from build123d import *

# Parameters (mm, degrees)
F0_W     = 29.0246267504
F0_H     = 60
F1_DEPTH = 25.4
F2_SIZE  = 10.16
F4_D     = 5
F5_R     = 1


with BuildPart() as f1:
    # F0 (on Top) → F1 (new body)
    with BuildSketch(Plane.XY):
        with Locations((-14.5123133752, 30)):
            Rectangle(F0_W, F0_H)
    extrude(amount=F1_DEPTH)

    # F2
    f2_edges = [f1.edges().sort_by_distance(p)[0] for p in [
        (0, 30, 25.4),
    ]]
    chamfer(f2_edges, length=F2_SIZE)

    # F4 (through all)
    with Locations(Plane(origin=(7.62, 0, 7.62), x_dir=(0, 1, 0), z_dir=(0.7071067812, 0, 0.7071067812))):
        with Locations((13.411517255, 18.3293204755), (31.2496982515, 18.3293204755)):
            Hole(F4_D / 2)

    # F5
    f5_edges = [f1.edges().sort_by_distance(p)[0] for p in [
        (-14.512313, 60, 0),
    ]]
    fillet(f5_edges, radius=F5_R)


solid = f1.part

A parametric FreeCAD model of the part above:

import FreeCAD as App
import Part
import Sketcher
from FreeCAD import Vector
Q = App.Units.Quantity


def edges_at(feature, points):
    """Names of the edges that pass closest to the given points."""
    edges = feature.Shape.Edges
    near = lambda p: min(range(len(edges)), key=lambda i: edges[i].distToShape(Part.Vertex(*p))[0])
    return sorted({f"Edge{near(p) + 1}" for p in points})


def add_polygon(sketch, points):
    """Adds a closed chain of lines whose ends are joined by coincident constraints."""
    first, n = sketch.GeometryCount, len(points)
    for a, b in zip(points, points[1:] + points[:1]):
        sketch.addGeometry(Part.LineSegment(App.Vector(*a, 0), App.Vector(*b, 0)), False)
    for i in range(n):
        sketch.addConstraint(Sketcher.Constraint("Coincident", first + i, 2, first + (i + 1) % n, 1))

doc = App.newDocument("Part")
body = doc.addObject("PartDesign::Body", "Body")

sketch1 = body.newObject("Sketcher::SketchObject", "Sketch")
sketch1.AttachmentSupport = (doc.getObject("XY_Plane"), [""])
sketch1.MapMode = "FlatFace"
add_polygon(sketch1, [(-29, 60), (-29, 0), (0, 0), (0, 60)])
sketch1.addConstraint(Sketcher.Constraint("Vertical", 0))
sketch1.addConstraint(Sketcher.Constraint("Horizontal", 1))
sketch1.addConstraint(Sketcher.Constraint("Vertical", 2))
sketch1.addConstraint(Sketcher.Constraint("Horizontal", 3))
sketch1.addConstraint(Sketcher.Constraint("Coincident", 1, 2, -1, 1))
sketch1.addConstraint(Sketcher.Constraint("DistanceY", 0, 2, 0, 1, Q("60 mm")))
sketch1.addConstraint(Sketcher.Constraint("DistanceX", 1, 1, 1, 2, Q("29.024627 mm")))
pad1 = body.newObject("PartDesign::Pad", "Pad")
pad1.Profile = sketch1
pad1.Length = 25.4
doc.recompute()

chamfer = body.newObject("PartDesign::Chamfer", "Chamfer")
chamfer.Base = (pad1, edges_at(pad1, [(0, 30, 25.4)]))
chamfer.Size = 10.16

sketch2 = body.newObject("Sketcher::SketchObject", "Sketch001")
sketch2.Placement = App.Placement(Vector(7.62, 0, 7.62), App.Rotation(Vector(0, 1, 0), Vector(-0.707106781, 0, 0.707106781), Vector(0.707106781, 0, 0.707106781), "ZXY"))
sketch2.addGeometry(Part.Circle(Vector(13.4, 18.3, 0), Vector(0, 0, 1), 2.5), False)
sketch2.addGeometry(Part.Circle(Vector(31.2, 18.3, 0), Vector(0, 0, 1), 2.5), False)
sketch2.addConstraint(Sketcher.Constraint("Equal", 0, 1))
sketch2.addConstraint(Sketcher.Constraint("Horizontal", 0, 3, 1, 3))
sketch2.addConstraint(Sketcher.Constraint("Diameter", 0, Q("5 mm")))
sketch2.addConstraint(Sketcher.Constraint("DistanceX", -1, 1, 1, 3, Q("31.249698 mm")))
sketch2.addConstraint(Sketcher.Constraint("DistanceY", -1, 1, 0, 3, Q("18.32932 mm")))
sketch2.addConstraint(Sketcher.Constraint("DistanceX", 0, 3, 1, 3, Q("17.838181 mm")))
doc.recompute()
hole = body.newObject("PartDesign::Hole", "Hole")
hole.Profile = sketch2
hole.ThreadType = "None"
hole.Diameter = 5
hole.DepthType = "ThroughAll"
doc.recompute()

fillet = body.newObject("PartDesign::Fillet", "Fillet")
fillet.Base = (hole, edges_at(hole, [(-14.512, 60, 0)]))
fillet.Radius = 1

doc.recompute()
